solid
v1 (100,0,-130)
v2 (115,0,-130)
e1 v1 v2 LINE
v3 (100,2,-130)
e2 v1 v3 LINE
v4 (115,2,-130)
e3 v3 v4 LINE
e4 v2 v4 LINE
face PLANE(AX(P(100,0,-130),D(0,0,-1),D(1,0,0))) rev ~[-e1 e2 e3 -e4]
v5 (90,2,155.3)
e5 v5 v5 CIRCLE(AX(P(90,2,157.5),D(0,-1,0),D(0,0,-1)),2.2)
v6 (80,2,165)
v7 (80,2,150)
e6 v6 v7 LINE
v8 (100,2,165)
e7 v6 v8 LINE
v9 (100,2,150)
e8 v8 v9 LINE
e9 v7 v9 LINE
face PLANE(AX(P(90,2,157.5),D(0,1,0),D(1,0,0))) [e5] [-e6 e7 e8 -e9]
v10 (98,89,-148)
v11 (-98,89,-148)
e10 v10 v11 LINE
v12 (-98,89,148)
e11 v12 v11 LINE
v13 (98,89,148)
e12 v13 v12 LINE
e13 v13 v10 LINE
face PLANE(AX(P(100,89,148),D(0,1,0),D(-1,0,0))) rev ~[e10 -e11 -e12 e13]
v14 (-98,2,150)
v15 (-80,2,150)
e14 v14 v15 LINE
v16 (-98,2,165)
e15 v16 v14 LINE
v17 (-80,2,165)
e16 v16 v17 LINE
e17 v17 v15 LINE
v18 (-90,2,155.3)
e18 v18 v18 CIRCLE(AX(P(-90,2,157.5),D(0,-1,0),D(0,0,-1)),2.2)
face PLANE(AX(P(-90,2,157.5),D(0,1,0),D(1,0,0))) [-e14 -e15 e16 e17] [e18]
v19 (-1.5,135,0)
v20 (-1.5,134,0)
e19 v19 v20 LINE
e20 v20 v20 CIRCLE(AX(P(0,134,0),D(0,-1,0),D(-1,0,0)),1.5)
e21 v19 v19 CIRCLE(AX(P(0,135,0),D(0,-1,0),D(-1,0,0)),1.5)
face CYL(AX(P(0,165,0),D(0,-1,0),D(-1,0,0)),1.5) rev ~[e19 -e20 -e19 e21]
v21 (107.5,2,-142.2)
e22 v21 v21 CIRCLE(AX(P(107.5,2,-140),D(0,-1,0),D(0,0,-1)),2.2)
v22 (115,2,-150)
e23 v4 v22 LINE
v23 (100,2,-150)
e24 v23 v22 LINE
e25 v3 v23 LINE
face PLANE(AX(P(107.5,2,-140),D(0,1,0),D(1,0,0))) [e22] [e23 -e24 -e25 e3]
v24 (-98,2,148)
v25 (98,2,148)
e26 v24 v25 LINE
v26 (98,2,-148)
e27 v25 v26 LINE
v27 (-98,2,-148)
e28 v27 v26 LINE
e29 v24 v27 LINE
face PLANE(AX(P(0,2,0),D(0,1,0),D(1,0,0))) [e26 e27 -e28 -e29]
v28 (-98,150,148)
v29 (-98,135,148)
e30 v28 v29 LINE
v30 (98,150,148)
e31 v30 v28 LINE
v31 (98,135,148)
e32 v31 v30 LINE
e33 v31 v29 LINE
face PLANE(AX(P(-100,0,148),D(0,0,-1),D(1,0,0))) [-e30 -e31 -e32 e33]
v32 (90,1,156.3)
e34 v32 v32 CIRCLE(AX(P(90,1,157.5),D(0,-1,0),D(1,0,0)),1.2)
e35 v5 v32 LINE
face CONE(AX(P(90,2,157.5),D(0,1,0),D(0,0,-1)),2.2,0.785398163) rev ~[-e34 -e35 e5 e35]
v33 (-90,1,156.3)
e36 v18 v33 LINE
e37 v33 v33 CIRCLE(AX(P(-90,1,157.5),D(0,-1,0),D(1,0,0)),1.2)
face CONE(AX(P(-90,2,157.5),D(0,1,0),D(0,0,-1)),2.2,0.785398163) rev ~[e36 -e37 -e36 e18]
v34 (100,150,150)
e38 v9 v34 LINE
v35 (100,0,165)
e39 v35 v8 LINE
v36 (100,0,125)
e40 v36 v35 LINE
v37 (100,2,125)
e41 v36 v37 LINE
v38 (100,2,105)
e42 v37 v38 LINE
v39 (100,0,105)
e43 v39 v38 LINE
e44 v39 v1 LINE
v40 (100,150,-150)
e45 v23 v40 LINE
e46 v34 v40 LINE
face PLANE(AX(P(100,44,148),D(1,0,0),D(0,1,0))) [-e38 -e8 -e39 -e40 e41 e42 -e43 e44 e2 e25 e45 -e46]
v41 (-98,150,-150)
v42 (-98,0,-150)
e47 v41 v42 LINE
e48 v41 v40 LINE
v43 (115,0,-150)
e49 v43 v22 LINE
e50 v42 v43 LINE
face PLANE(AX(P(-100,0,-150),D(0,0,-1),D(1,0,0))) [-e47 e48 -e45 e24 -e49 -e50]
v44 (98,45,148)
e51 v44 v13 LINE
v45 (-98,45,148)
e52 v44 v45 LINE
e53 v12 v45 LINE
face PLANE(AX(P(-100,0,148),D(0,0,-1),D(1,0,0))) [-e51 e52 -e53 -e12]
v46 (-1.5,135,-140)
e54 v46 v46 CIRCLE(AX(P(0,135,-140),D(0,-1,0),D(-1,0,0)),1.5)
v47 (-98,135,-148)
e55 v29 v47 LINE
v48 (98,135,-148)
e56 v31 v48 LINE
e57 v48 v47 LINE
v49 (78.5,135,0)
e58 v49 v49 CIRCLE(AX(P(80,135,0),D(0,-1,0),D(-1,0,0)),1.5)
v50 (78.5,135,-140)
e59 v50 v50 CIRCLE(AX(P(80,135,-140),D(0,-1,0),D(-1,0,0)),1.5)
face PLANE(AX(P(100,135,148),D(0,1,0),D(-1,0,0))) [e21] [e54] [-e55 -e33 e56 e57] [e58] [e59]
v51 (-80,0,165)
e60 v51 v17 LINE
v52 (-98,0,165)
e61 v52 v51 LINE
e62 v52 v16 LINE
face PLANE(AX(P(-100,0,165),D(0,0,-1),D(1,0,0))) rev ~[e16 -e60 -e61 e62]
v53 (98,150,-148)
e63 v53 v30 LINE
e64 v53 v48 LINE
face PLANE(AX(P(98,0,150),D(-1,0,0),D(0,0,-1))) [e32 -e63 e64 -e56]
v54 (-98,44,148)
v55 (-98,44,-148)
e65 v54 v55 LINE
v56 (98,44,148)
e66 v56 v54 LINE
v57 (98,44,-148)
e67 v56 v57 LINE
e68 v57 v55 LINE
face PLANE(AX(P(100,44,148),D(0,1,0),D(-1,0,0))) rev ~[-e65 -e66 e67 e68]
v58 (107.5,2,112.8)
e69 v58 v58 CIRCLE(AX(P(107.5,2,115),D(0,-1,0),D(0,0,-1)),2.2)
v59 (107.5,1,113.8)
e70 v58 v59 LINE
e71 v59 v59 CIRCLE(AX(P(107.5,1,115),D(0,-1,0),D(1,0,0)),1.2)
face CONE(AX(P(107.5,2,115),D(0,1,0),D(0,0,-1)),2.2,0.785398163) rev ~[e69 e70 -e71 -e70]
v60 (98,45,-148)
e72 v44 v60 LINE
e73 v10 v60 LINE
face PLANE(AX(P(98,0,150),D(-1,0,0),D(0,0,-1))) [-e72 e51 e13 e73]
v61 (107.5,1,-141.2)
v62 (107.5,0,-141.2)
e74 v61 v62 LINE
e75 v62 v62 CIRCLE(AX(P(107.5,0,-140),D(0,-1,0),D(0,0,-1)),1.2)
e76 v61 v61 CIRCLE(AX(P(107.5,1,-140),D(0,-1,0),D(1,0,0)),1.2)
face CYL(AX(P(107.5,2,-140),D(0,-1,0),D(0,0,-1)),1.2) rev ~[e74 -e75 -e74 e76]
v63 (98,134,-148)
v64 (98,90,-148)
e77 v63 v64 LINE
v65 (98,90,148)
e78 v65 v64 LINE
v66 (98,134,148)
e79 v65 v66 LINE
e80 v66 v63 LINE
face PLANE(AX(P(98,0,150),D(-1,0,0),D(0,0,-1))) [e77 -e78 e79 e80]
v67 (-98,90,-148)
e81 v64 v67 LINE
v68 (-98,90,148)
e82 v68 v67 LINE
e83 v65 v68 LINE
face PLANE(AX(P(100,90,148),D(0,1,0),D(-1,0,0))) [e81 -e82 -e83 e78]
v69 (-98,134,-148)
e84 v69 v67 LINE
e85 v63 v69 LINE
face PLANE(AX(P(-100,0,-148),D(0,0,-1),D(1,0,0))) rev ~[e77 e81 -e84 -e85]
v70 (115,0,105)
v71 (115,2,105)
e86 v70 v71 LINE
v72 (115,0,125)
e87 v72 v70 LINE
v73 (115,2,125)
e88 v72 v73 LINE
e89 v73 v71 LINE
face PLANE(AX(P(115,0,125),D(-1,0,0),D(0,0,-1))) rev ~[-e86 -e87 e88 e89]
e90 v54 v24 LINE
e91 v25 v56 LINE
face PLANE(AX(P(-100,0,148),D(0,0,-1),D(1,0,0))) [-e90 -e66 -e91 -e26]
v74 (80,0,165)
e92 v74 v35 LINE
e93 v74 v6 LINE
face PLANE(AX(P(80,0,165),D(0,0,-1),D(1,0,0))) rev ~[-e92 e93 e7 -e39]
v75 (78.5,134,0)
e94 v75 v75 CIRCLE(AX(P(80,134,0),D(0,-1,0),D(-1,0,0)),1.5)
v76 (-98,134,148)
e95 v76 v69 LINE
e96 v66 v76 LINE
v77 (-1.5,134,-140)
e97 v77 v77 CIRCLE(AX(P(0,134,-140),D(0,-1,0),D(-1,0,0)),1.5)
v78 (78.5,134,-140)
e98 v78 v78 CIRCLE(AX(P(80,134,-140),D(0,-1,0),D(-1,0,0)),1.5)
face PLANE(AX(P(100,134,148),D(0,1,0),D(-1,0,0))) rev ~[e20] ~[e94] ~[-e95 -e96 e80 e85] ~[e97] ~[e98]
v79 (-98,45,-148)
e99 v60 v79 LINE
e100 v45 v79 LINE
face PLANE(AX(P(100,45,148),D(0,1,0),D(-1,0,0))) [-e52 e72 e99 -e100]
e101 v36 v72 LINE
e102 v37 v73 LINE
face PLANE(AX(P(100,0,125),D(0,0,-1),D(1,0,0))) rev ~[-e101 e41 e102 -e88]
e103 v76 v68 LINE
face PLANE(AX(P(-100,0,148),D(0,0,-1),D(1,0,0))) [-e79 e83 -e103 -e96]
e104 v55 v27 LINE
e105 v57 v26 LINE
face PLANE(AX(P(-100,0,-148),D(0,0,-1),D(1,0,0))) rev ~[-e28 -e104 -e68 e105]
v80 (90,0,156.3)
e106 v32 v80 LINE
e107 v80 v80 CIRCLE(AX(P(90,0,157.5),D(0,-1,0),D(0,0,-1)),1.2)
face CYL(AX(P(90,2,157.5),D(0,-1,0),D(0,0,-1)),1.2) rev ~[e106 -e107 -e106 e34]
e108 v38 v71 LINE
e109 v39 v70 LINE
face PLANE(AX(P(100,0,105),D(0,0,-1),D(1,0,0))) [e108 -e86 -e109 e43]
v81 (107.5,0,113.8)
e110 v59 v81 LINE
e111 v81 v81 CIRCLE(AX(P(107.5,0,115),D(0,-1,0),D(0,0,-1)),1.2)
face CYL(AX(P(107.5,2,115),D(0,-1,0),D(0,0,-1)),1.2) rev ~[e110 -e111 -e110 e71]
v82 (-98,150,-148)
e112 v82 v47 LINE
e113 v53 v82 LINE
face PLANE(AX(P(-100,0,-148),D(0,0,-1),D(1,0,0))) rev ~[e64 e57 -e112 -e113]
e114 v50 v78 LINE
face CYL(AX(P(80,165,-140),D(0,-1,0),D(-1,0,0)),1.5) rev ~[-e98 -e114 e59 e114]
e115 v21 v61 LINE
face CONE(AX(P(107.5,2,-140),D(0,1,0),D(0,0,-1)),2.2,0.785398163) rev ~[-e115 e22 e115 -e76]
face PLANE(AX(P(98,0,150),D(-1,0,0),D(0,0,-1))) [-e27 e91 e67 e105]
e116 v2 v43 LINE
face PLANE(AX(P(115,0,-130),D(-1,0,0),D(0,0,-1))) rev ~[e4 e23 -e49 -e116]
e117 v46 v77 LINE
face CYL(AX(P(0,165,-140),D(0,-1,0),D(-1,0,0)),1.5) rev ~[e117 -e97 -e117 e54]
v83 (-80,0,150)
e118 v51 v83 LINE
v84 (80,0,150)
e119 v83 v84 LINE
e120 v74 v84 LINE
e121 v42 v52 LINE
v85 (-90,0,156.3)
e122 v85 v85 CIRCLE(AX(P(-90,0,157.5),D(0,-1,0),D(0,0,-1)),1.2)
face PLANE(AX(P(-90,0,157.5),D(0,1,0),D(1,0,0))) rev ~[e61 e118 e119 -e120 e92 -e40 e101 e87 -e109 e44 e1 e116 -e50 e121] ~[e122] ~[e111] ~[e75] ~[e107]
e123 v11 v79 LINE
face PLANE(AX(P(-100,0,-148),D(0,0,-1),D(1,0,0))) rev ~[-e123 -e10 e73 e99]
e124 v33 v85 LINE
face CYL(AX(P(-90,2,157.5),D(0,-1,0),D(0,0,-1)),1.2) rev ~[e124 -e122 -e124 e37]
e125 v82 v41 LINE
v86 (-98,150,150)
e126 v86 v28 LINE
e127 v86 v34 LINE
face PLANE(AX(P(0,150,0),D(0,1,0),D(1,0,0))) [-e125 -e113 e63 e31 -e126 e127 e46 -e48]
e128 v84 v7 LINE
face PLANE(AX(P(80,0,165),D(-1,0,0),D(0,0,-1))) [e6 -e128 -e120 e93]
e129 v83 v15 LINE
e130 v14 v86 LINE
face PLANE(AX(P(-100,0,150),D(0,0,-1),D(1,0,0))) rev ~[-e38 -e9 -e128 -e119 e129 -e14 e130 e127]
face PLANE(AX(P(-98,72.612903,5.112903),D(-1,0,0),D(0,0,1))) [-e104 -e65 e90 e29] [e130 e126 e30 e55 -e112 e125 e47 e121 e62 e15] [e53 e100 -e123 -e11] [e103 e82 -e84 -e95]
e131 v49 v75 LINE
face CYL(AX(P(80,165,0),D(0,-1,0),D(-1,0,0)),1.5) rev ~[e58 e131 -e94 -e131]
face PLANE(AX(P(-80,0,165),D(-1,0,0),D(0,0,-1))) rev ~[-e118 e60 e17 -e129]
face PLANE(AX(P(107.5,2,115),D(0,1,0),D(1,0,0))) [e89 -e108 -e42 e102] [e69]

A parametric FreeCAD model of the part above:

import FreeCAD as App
import Part
import Sketcher

V = App.Vector
Q = App.Units.Quantity


def faces_at(feature, points):
    """Names of the faces that lie closest to the given points."""
    faces = feature.Shape.Faces
    near = lambda p: min(range(len(faces)), key=lambda i: faces[i].distToShape(Part.Vertex(*p))[0])
    return sorted({f"Face{near(p) + 1}" for p in points})


def add_polygon(sketch, points):
    """Adds a closed chain of lines whose ends are joined by coincident constraints."""
    first, n = sketch.GeometryCount, len(points)
    for a, b in zip(points, points[1:] + points[:1]):
        sketch.addGeometry(Part.LineSegment(App.Vector(*a, 0), App.Vector(*b, 0)), False)
    for i in range(n):
        sketch.addConstraint(Sketcher.Constraint("Coincident", first + i, 2, first + (i + 1) % n, 1))

doc = App.newDocument("Part")
body = doc.addObject("PartDesign::Body", "Body")

# Sketch on XZ plane
sketch1 = body.newObject("Sketcher::SketchObject", "Sketch")
sketch1.AttachmentSupport = (doc.getObject("XZ_Plane"), [""])
sketch1.MapMode = "FlatFace"
add_polygon(sketch1, [(-100, -150), (-100, 150), (100, 150), (100, -150)])  # lines 0-3
sketch1.addConstraint(Sketcher.Constraint("Vertical", 0))
sketch1.addConstraint(Sketcher.Constraint("Horizontal", 1))
sketch1.addConstraint(Sketcher.Constraint("Vertical", 2))
sketch1.addConstraint(Sketcher.Constraint("Horizontal", 3))
sketch1.addConstraint(Sketcher.Constraint("Symmetric", 0, 2, 2, 2, -1, 1))
sketch1.addConstraint(Sketcher.Constraint("DistanceX", 1, 1, 1, 2, Q("200 mm")))
sketch1.addConstraint(Sketcher.Constraint("DistanceY", 0, 1, 0, 2, Q("300 mm")))
pad1 = body.newObject("PartDesign::Pad", "Pad")
pad1.Profile = sketch1
pad1.Length = 150
pad1.Reversed = True
doc.recompute()

thickness = body.newObject("PartDesign::Thickness", "Thickness")
thickness.Base = (pad1, faces_at(pad1, [(0, 150, 0)]))
thickness.Value = 2
thickness.Reversed = True
thickness.Join = "Intersection"

# Sketch on XZ plane
sketch2 = body.newObject("Sketcher::SketchObject", "Sketch001")
sketch2.AttachmentSupport = (doc.getObject("XZ_Plane"), [""])
sketch2.MapMode = "FlatFace"
add_polygon(sketch2, [(-100, 150), (-100, 165), (-80, 165), (-80, 150)])  # lines 0-3
add_polygon(sketch2, [(80, 150), (80, 165), (100, 165), (100, 150)])  # lines 4-7
add_polygon(sketch2, [(100, -150), (100, -130), (115, -130), (115, -150)])  # lines 8-11
add_polygon(sketch2, [(100, 105), (100, 125), (115, 125), (115, 105)])  # lines 12-15
sketch2.addConstraint(Sketcher.Constraint("Vertical", 0))
sketch2.addConstraint(Sketcher.Constraint("Horizontal", 1))
sketch2.addConstraint(Sketcher.Constraint("Vertical", 2))
sketch2.addConstraint(Sketcher.Constraint("Horizontal", 3))
sketch2.addConstraint(Sketcher.Constraint("Vertical", 4))
sketch2.addConstraint(Sketcher.Constraint("Horizontal", 5))
sketch2.addConstraint(Sketcher.Constraint("Vertical", 6))
sketch2.addConstraint(Sketcher.Constraint("Horizontal", 7))
sketch2.addConstraint(Sketcher.Constraint("Vertical", 8))
sketch2.addConstraint(Sketcher.Constraint("Horizontal", 9))
sketch2.addConstraint(Sketcher.Constraint("Vertical", 10))
sketch2.addConstraint(Sketcher.Constraint("Horizontal", 11))
sketch2.addConstraint(Sketcher.Constraint("Vertical", 12))
sketch2.addConstraint(Sketcher.Constraint("Horizontal", 13))
sketch2.addConstraint(Sketcher.Constraint("Vertical", 14))
sketch2.addConstraint(Sketcher.Constraint("Horizontal", 15))
sketch2.addConstraint(Sketcher.Constraint("Symmetric", 3, 2, 11, 2, -1, 1))
sketch2.addConstraint(Sketcher.Constraint("Symmetric", 1, 2, 4, 2, -2))
sketch2.addConstraint(Sketcher.Constraint("Symmetric", 3, 2, 6, 2, -2))
sketch2.addConstraint(Sketcher.Constraint("Vertical", 11, 2, 12, 2))
sketch2.addConstraint(Sketcher.Constraint("Vertical", 10, 2, 13, 2))
sketch2.addConstraint(Sketcher.Constraint("Equal", 15, 0))
sketch2.addConstraint(Sketcher.Constraint("Equal", 7, 8))
sketch2.addConstraint(Sketcher.Constraint("Equal", 10, 12))
sketch2.addConstraint(Sketcher.Constraint("DistanceX", 1, 1, 1, 2, Q("20 mm")))
sketch2.addConstraint(Sketcher.Constraint("DistanceX", 9, 1, 9, 2, Q("15 mm")))
sketch2.addConstraint(Sketcher.Constraint("DistanceX", 0, 2, -1, 1, Q("100 mm")))
sketch2.addConstraint(Sketcher.Constraint("DistanceY", -1, 1, 0, 2, Q("165 mm")))
sketch2.addConstraint(Sketcher.Constraint("DistanceY", -1, 1, 12, 2, Q("125 mm")))
pad2 = body.newObject("PartDesign::Pad", "Pad001")
pad2.Profile = sketch2
pad2.Length = 2
pad2.Reversed = True

# Sketch on XZ plane
sketch3 = body.newObject("Sketcher::SketchObject", "Sketch002")
sketch3.AttachmentSupport = (doc.getObject("XZ_Plane"), [""])
sketch3.MapMode = "FlatFace"
sketch3.AttachmentOffset = App.Placement(V(0, 0, -2), App.Rotation())
sketch3.addGeometry(Part.Circle(V(107.5, -140, 0), V(0, 0, 1), 1.2), False)
sketch3.addGeometry(Part.Circle(V(107.5, 115, 0), V(0, 0, 1), 1.2), False)
sketch3.addGeometry(Part.Circle(V(90, 157.5, 0), V(0, 0, 1), 1.2), False)
sketch3.addGeometry(Part.Circle(V(-90, 157.5, 0), V(0, 0, 1), 1.2), False)
sketch3.addConstraint(Sketcher.Constraint("Equal", 0, 1))
sketch3.addConstraint(Sketcher.Constraint("Equal", 1, 2))
sketch3.addConstraint(Sketcher.Constraint("Equal", 2, 3))
sketch3.addConstraint(Sketcher.Constraint("Symmetric", 2, 3, 3, 3, -2))
sketch3.addConstraint(Sketcher.Constraint("Vertical", 0, 3, 1, 3))
sketch3.addConstraint(Sketcher.Constraint("Diameter", 0, Q("2.4 mm")))
sketch3.addConstraint(Sketcher.Constraint("DistanceY", 0, 3, -1, 1, Q("140 mm")))
sketch3.addConstraint(Sketcher.Constraint("DistanceY", -1, 1, 1, 3, Q("115 mm")))
sketch3.addConstraint(Sketcher.Constraint("DistanceX", -1, 1, 2, 3, Q("90 mm")))
sketch3.addConstraint(Sketcher.Constraint("DistanceX", -1, 1, 0, 3, Q("107.5 mm")))
sketch3.addConstraint(Sketcher.Constraint("DistanceY", -1, 1, 2, 3, Q("157.5 mm")))
doc.recompute()
hole = body.newObject("PartDesign::Hole", "Hole")
hole.Profile = sketch3
hole.ThreadType = "None"
hole.Diameter = 2.4
hole.DepthType = "Dimension"
hole.Depth = 30
hole.DrillPoint = "Angled"
hole.DrillPointAngle = 118
hole.HoleCutType = "Countersink"
hole.HoleCutDiameter = 4.4
hole.HoleCutCountersinkAngle = 90
hole.Reversed = True

# Sketch on XY plane
sketch4 = body.newObject("Sketcher::SketchObject", "Sketch003")
sketch4.AttachmentSupport = (doc.getObject("XY_Plane"), [""])
sketch4.MapMode = "FlatFace"
sketch4.AttachmentOffset = App.Placement(V(0, 0, 148), App.Rotation())
add_polygon(sketch4, [(100, 45), (100, 44), (-100, 44), (-100, 45)])  # lines 0-3
add_polygon(sketch4, [(100, 90), (100, 89), (-100, 89), (-100, 90)])  # lines 4-7
add_polygon(sketch4, [(100, 135), (100, 134), (-100, 134), (-100, 135)])  # lines 8-11
sketch4.addConstraint(Sketcher.Constraint("Vertical", 0))
sketch4.addConstraint(Sketcher.Constraint("Horizontal", 1))
sketch4.addConstraint(Sketcher.Constraint("Vertical", 2))
sketch4.addConstraint(Sketcher.Constraint("Horizontal", 3))
sketch4.addConstraint(Sketcher.Constraint("Vertical", 4))
sketch4.addConstraint(Sketcher.Constraint("Horizontal", 5))
sketch4.addConstraint(Sketcher.Constraint("Vertical", 6))
sketch4.addConstraint(Sketcher.Constraint("Horizontal", 7))
sketch4.addConstraint(Sketcher.Constraint("Vertical", 8))
sketch4.addConstraint(Sketcher.Constraint("Horizontal", 9))
sketch4.addConstraint(Sketcher.Constraint("Vertical", 10))
sketch4.addConstraint(Sketcher.Constraint("Horizontal", 11))
sketch4.addConstraint(Sketcher.Constraint("Vertical", 3, 2, 4, 2))
sketch4.addConstraint(Sketcher.Constraint("Vertical", 2, 2, 5, 2))
sketch4.addConstraint(Sketcher.Constraint("Vertical", 7, 2, 8, 2))
sketch4.addConstraint(Sketcher.Constraint("Vertical", 6, 2, 9, 2))
sketch4.addConstraint(Sketcher.Constraint("Equal", 2, 4))
sketch4.addConstraint(Sketcher.Constraint("Equal", 6, 8))
sketch4.addConstraint(Sketcher.Constraint("DistanceX", 1, 2, 1, 1, Q("200 mm")))
sketch4.addConstraint(Sketcher.Constraint("DistanceY", 0, 2, 0, 1, Q("1 mm")))
sketch4.addConstraint(Sketcher.Constraint("DistanceX", -1, 1, 0, 2, Q("100 mm")))
sketch4.addConstraint(Sketcher.Constraint("DistanceY", -1, 1, 0, 2, Q("44 mm")))
sketch4.addConstraint(Sketcher.Constraint("DistanceY", -1, 1, 4, 2, Q("89 mm")))
sketch4.addConstraint(Sketcher.Constraint("DistanceY", -1, 1, 8, 2, Q("134 mm")))
pad3 = body.newObject("PartDesign::Pad", "Pad002")
pad3.Profile = sketch4
pad3.Length = 296
pad3.Reversed = True

# Sketch on YZ plane
sketch5 = body.newObject("Sketcher::SketchObject", "Sketch004")
sketch5.AttachmentSupport = (doc.getObject("YZ_Plane"), [""])
sketch5.MapMode = "FlatFace"
sketch5.AttachmentOffset = App.Placement(V(0, 0, -100), App.Rotation())
add_polygon(sketch5, [(0, -150), (0, 165), (2, 165), (2, 150), (150, 150), (150, -150)])  # lines 0-5
sketch5.addConstraint(Sketcher.Constraint("Vertical", 0))
sketch5.addConstraint(Sketcher.Constraint("Horizontal", 1))
sketch5.addConstraint(Sketcher.Constraint("Vertical", 2))
sketch5.addConstraint(Sketcher.Constraint("Horizontal", 3))
sketch5.addConstraint(Sketcher.Constraint("Vertical", 4))
sketch5.addConstraint(Sketcher.Constraint("Horizontal", 5))
sketch5.addConstraint(Sketcher.Constraint("PointOnObject", 0, 2, -2))
sketch5.addConstraint(Sketcher.Constraint("DistanceX", 1, 1, 1, 2, Q("2 mm")))
sketch5.addConstraint(Sketcher.Constraint("DistanceX", 3, 1, 3, 2, Q("148 mm")))
sketch5.addConstraint(Sketcher.Constraint("DistanceY", 0, 1, 0, 2, Q("315 mm")))
sketch5.addConstraint(Sketcher.Constraint("DistanceY", 2, 2, 2, 1, Q("15 mm")))
sketch5.addConstraint(Sketcher.Constraint("DistanceY", -1, 1, 0, 2, Q("165 mm")))
pocket1 = body.newObject("PartDesign::Pocket", "Pocket")
pocket1.Profile = sketch5
pocket1.Length = 2
pocket1.Reversed = True

# Sketch on XZ plane
sketch6 = body.newObject("Sketcher::SketchObject", "Sketch005")
sketch6.AttachmentSupport = (doc.getObject("XZ_Plane"), [""])
sketch6.MapMode = "FlatFace"
sketch6.AttachmentOffset = App.Placement(V(0, 0, -135), App.Rotation())
sketch6.addGeometry(Part.Circle(V(0, 0, 0), V(0, 0, 1), 1.5), False)
sketch6.addGeometry(Part.Circle(V(80, -140, 0), V(0, 0, 1), 1.5), False)
sketch6.addGeometry(Part.Circle(V(0, -140, 0), V(0, 0, 1), 1.5), False)
sketch6.addGeometry(Part.Circle(V(80, 0, 0), V(0, 0, 1), 1.5), False)
sketch6.addConstraint(Sketcher.Constraint("Coincident", 0, 3, -1, 1))
sketch6.addConstraint(Sketcher.Constraint("Equal", 0, 1))
sketch6.addConstraint(Sketcher.Constraint("Equal", 1, 2))
sketch6.addConstraint(Sketcher.Constraint("Equal", 2, 3))
sketch6.addConstraint(Sketcher.Constraint("PointOnObject", 2, 3, -2))
sketch6.addConstraint(Sketcher.Constraint("PointOnObject", 3, 3, -1))
sketch6.addConstraint(Sketcher.Constraint("Horizontal", 1, 3, 2, 3))
sketch6.addConstraint(Sketcher.Constraint("Vertical", 1, 3, 3, 3))
sketch6.addConstraint(Sketcher.Constraint("Diameter", 0, Q("3 mm")))
sketch6.addConstraint(Sketcher.Constraint("DistanceX", -1, 1, 1, 3, Q("80 mm")))
sketch6.addConstraint(Sketcher.Constraint("DistanceY", 1, 3, -1, 1, Q("140 mm")))
doc.recompute()
hole2 = body.newObject("PartDesign::Hole", "Hole001")
hole2.Profile = sketch6
hole2.ThreadType = "None"
hole2.Diameter = 3
hole2.DepthType = "Dimension"
hole2.Depth = 30
hole2.DrillPoint = "Angled"
hole2.DrillPointAngle = 118
hole2.Reversed = True

doc.recompute()
